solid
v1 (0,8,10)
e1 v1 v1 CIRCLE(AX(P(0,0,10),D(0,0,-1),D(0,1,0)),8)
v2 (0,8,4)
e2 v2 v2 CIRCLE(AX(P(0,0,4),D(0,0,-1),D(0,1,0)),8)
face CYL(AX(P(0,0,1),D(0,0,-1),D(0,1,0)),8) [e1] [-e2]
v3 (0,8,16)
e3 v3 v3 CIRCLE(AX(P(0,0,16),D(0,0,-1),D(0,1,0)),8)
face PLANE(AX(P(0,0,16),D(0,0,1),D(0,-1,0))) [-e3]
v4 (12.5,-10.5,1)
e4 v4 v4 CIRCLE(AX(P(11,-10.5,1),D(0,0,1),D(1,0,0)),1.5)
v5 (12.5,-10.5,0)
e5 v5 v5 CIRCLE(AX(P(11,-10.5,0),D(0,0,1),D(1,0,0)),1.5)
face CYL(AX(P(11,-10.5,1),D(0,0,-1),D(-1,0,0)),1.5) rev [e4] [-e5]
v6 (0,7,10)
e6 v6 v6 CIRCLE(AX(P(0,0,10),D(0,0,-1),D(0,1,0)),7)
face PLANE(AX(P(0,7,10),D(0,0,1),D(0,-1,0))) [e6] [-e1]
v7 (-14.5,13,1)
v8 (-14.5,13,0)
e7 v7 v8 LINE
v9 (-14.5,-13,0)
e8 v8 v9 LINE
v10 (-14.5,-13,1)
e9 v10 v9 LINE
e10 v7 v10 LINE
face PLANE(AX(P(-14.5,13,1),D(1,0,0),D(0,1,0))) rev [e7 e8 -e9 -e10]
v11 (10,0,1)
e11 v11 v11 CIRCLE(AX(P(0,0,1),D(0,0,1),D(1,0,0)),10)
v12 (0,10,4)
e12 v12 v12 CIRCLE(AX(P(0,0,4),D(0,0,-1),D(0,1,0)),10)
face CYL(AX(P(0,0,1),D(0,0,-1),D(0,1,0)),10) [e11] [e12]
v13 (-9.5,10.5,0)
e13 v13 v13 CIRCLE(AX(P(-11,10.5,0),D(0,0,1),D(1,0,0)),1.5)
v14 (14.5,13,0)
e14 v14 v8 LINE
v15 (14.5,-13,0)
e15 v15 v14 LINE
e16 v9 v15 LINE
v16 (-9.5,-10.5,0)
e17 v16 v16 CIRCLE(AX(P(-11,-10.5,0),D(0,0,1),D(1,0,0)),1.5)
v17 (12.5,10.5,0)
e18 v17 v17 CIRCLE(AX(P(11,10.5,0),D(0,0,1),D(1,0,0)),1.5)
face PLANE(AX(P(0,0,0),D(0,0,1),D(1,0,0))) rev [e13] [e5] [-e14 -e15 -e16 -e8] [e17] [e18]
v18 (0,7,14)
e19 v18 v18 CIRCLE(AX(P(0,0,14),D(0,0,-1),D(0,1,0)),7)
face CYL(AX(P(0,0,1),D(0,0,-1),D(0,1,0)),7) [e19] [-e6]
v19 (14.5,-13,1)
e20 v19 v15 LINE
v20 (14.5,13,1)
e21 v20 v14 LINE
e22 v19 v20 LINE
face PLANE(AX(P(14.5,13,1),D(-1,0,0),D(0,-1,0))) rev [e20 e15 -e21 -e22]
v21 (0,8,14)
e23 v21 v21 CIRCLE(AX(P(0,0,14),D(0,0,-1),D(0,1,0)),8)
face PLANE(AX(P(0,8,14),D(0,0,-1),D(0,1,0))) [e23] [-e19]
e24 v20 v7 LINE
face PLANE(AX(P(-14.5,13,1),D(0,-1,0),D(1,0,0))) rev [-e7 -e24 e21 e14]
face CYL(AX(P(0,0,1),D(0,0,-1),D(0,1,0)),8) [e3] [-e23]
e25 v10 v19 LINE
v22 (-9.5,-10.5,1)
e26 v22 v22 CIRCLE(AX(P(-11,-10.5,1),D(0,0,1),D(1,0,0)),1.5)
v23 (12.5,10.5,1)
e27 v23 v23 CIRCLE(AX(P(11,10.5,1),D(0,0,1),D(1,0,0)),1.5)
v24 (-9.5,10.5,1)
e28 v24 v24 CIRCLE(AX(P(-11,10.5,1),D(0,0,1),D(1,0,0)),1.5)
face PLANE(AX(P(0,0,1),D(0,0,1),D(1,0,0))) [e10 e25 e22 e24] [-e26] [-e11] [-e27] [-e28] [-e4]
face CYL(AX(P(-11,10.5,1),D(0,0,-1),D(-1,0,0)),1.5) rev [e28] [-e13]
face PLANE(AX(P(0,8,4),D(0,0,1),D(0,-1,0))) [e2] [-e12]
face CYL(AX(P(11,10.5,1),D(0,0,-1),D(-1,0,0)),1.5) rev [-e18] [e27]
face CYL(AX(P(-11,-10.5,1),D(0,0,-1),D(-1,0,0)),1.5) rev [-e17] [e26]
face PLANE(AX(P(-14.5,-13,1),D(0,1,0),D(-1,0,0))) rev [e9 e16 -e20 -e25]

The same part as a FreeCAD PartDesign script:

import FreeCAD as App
import Part
import Sketcher
Q = App.Units.Quantity

doc = App.newDocument("Part")
body = doc.addObject("PartDesign::Body", "Body")

# Sketch on XY plane
sketch1 = body.newObject("Sketcher::SketchObject", "Sketch")
sketch1.AttachmentSupport = (doc.getObject("XY_Plane"), [""])
sketch1.MapMode = "FlatFace"
sketch1.addGeometry([
    Part.LineSegment(App.Vector(-14.5, 13, 0), App.Vector(-14.5, -13, 0)),  # 0
    Part.LineSegment(App.Vector(-14.5, -13, 0), App.Vector(14.5, -13, 0)),  # 1
    Part.LineSegment(App.Vector(14.5, -13, 0), App.Vector(14.5, 13, 0)),  # 2
    Part.LineSegment(App.Vector(14.5, 13, 0), App.Vector(-14.5, 13, 0)),  # 3
    Part.Circle(App.Vector(-11, -10.5, 0), App.Vector(0, 0, 1), 1.5),  # 4
    Part.Circle(App.Vector(11, -10.5, 0), App.Vector(0, 0, 1), 1.5),  # 5
    Part.Circle(App.Vector(-11, 10.5, 0), App.Vector(0, 0, 1), 1.5),  # 6
    Part.Circle(App.Vector(11, 10.5, 0), App.Vector(0, 0, 1), 1.5),  # 7
], False)
sketch1.addConstraint([
    Sketcher.Constraint("Coincident", 0, 2, 1, 1),
    Sketcher.Constraint("Coincident", 1, 2, 2, 1),
    Sketcher.Constraint("Coincident", 2, 2, 3, 1),
    Sketcher.Constraint("Coincident", 3, 2, 0, 1),
    Sketcher.Constraint("Vertical", 0),
    Sketcher.Constraint("Horizontal", 1),
    Sketcher.Constraint("Vertical", 2),
    Sketcher.Constraint("Horizontal", 3),
    Sketcher.Constraint("Equal", 4, 5),
    Sketcher.Constraint("Equal", 5, 6),
    Sketcher.Constraint("Equal", 6, 7),
    Sketcher.Constraint("Symmetric", 5, 3, 6, 3, -1, 1),
    Sketcher.Constraint("Symmetric", 4, 3, 7, 3, -1, 1),
    Sketcher.Constraint("Symmetric", 0, 2, 2, 2, -1, 1),
    Sketcher.Constraint("Symmetric", 4, 3, 5, 3, -2),
    Sketcher.Constraint("Diameter", 4, Q("3 mm")),
    Sketcher.Constraint("DistanceX", 1, 1, 1, 2, Q("29 mm")),
    Sketcher.Constraint("DistanceY", 0, 2, 0, 1, Q("26 mm")),
    Sketcher.Constraint("DistanceX", 4, 3, -1, 1, Q("11 mm")),
    Sketcher.Constraint("DistanceY", 4, 3, 6, 3, Q("21 mm")),
])
pad1 = body.newObject("PartDesign::Pad", "Pad")
pad1.Profile = sketch1
pad1.Length = 1

# Sketch on YZ plane
sketch2 = body.newObject("Sketcher::SketchObject", "Sketch001")
sketch2.AttachmentSupport = (doc.getObject("YZ_Plane"), [""])
sketch2.MapMode = "FlatFace"
sketch2.addGeometry([
    Part.LineSegment(App.Vector(0, 16, 0), App.Vector(0, 1, 0)),  # 0
    Part.LineSegment(App.Vector(0, 1, 0), App.Vector(10, 1, 0)),  # 1
    Part.LineSegment(App.Vector(10, 1, 0), App.Vector(10, 4, 0)),  # 2
    Part.LineSegment(App.Vector(10, 4, 0), App.Vector(8, 4, 0)),  # 3
    Part.LineSegment(App.Vector(8, 4, 0), App.Vector(8, 10, 0)),  # 4
    Part.LineSegment(App.Vector(8, 10, 0), App.Vector(7, 10, 0)),  # 5
    Part.LineSegment(App.Vector(7, 10, 0), App.Vector(7, 14, 0)),  # 6
    Part.LineSegment(App.Vector(7, 14, 0), App.Vector(8, 14, 0)),  # 7
    Part.LineSegment(App.Vector(8, 14, 0), App.Vector(8, 16, 0)),  # 8
    Part.LineSegment(App.Vector(8, 16, 0), App.Vector(0, 16, 0)),  # 9
], False)
sketch2.addConstraint([
    Sketcher.Constraint("Coincident", 0, 2, 1, 1),
    Sketcher.Constraint("Coincident", 1, 2, 2, 1),
    Sketcher.Constraint("Coincident", 2, 2, 3, 1),
    Sketcher.Constraint("Coincident", 3, 2, 4, 1),
    Sketcher.Constraint("Coincident", 4, 2, 5, 1),
    Sketcher.Constraint("Coincident", 5, 2, 6, 1),
    Sketcher.Constraint("Coincident", 6, 2, 7, 1),
    Sketcher.Constraint("Coincident", 7, 2, 8, 1),
    Sketcher.Constraint("Coincident", 8, 2, 9, 1),
    Sketcher.Constraint("Coincident", 9, 2, 0, 1),
    Sketcher.Constraint("Vertical", 0),
    Sketcher.Constraint("Horizontal", 1),
    Sketcher.Constraint("Vertical", 2),
    Sketcher.Constraint("Horizontal", 3),
    Sketcher.Constraint("Vertical", 4),
    Sketcher.Constraint("Horizontal", 5),
    Sketcher.Constraint("Vertical", 6),
    Sketcher.Constraint("Horizontal", 7),
    Sketcher.Constraint("Vertical", 8),
    Sketcher.Constraint("Horizontal", 9),
    Sketcher.Constraint("PointOnObject", 0, 2, -2),
    Sketcher.Constraint("Vertical", 4, 2, 7, 2),
    Sketcher.Constraint("Equal", 3, 8),
    Sketcher.Constraint("DistanceX", 1, 1, 1, 2, Q("10 mm")),
    Sketcher.Constraint("DistanceX", 3, 2, 3, 1, Q("2 mm")),
    Sketcher.Constraint("DistanceX", 5, 2, 5, 1, Q("1 mm")),
    Sketcher.Constraint("DistanceY", 0, 2, 0, 1, Q("15 mm")),
    Sketcher.Constraint("DistanceY", 2, 1, 2, 2, Q("3 mm")),
    Sketcher.Constraint("DistanceY", 4, 1, 4, 2, Q("6 mm")),
    Sketcher.Constraint("DistanceY", -1, 1, 0, 2, Q("1 mm")),
])
revolution = body.newObject("PartDesign::Revolution", "Revolution")
revolution.Profile = sketch2
revolution.ReferenceAxis = (sketch2, ["V_Axis"])
revolution.Angle = 360

doc.recompute()
